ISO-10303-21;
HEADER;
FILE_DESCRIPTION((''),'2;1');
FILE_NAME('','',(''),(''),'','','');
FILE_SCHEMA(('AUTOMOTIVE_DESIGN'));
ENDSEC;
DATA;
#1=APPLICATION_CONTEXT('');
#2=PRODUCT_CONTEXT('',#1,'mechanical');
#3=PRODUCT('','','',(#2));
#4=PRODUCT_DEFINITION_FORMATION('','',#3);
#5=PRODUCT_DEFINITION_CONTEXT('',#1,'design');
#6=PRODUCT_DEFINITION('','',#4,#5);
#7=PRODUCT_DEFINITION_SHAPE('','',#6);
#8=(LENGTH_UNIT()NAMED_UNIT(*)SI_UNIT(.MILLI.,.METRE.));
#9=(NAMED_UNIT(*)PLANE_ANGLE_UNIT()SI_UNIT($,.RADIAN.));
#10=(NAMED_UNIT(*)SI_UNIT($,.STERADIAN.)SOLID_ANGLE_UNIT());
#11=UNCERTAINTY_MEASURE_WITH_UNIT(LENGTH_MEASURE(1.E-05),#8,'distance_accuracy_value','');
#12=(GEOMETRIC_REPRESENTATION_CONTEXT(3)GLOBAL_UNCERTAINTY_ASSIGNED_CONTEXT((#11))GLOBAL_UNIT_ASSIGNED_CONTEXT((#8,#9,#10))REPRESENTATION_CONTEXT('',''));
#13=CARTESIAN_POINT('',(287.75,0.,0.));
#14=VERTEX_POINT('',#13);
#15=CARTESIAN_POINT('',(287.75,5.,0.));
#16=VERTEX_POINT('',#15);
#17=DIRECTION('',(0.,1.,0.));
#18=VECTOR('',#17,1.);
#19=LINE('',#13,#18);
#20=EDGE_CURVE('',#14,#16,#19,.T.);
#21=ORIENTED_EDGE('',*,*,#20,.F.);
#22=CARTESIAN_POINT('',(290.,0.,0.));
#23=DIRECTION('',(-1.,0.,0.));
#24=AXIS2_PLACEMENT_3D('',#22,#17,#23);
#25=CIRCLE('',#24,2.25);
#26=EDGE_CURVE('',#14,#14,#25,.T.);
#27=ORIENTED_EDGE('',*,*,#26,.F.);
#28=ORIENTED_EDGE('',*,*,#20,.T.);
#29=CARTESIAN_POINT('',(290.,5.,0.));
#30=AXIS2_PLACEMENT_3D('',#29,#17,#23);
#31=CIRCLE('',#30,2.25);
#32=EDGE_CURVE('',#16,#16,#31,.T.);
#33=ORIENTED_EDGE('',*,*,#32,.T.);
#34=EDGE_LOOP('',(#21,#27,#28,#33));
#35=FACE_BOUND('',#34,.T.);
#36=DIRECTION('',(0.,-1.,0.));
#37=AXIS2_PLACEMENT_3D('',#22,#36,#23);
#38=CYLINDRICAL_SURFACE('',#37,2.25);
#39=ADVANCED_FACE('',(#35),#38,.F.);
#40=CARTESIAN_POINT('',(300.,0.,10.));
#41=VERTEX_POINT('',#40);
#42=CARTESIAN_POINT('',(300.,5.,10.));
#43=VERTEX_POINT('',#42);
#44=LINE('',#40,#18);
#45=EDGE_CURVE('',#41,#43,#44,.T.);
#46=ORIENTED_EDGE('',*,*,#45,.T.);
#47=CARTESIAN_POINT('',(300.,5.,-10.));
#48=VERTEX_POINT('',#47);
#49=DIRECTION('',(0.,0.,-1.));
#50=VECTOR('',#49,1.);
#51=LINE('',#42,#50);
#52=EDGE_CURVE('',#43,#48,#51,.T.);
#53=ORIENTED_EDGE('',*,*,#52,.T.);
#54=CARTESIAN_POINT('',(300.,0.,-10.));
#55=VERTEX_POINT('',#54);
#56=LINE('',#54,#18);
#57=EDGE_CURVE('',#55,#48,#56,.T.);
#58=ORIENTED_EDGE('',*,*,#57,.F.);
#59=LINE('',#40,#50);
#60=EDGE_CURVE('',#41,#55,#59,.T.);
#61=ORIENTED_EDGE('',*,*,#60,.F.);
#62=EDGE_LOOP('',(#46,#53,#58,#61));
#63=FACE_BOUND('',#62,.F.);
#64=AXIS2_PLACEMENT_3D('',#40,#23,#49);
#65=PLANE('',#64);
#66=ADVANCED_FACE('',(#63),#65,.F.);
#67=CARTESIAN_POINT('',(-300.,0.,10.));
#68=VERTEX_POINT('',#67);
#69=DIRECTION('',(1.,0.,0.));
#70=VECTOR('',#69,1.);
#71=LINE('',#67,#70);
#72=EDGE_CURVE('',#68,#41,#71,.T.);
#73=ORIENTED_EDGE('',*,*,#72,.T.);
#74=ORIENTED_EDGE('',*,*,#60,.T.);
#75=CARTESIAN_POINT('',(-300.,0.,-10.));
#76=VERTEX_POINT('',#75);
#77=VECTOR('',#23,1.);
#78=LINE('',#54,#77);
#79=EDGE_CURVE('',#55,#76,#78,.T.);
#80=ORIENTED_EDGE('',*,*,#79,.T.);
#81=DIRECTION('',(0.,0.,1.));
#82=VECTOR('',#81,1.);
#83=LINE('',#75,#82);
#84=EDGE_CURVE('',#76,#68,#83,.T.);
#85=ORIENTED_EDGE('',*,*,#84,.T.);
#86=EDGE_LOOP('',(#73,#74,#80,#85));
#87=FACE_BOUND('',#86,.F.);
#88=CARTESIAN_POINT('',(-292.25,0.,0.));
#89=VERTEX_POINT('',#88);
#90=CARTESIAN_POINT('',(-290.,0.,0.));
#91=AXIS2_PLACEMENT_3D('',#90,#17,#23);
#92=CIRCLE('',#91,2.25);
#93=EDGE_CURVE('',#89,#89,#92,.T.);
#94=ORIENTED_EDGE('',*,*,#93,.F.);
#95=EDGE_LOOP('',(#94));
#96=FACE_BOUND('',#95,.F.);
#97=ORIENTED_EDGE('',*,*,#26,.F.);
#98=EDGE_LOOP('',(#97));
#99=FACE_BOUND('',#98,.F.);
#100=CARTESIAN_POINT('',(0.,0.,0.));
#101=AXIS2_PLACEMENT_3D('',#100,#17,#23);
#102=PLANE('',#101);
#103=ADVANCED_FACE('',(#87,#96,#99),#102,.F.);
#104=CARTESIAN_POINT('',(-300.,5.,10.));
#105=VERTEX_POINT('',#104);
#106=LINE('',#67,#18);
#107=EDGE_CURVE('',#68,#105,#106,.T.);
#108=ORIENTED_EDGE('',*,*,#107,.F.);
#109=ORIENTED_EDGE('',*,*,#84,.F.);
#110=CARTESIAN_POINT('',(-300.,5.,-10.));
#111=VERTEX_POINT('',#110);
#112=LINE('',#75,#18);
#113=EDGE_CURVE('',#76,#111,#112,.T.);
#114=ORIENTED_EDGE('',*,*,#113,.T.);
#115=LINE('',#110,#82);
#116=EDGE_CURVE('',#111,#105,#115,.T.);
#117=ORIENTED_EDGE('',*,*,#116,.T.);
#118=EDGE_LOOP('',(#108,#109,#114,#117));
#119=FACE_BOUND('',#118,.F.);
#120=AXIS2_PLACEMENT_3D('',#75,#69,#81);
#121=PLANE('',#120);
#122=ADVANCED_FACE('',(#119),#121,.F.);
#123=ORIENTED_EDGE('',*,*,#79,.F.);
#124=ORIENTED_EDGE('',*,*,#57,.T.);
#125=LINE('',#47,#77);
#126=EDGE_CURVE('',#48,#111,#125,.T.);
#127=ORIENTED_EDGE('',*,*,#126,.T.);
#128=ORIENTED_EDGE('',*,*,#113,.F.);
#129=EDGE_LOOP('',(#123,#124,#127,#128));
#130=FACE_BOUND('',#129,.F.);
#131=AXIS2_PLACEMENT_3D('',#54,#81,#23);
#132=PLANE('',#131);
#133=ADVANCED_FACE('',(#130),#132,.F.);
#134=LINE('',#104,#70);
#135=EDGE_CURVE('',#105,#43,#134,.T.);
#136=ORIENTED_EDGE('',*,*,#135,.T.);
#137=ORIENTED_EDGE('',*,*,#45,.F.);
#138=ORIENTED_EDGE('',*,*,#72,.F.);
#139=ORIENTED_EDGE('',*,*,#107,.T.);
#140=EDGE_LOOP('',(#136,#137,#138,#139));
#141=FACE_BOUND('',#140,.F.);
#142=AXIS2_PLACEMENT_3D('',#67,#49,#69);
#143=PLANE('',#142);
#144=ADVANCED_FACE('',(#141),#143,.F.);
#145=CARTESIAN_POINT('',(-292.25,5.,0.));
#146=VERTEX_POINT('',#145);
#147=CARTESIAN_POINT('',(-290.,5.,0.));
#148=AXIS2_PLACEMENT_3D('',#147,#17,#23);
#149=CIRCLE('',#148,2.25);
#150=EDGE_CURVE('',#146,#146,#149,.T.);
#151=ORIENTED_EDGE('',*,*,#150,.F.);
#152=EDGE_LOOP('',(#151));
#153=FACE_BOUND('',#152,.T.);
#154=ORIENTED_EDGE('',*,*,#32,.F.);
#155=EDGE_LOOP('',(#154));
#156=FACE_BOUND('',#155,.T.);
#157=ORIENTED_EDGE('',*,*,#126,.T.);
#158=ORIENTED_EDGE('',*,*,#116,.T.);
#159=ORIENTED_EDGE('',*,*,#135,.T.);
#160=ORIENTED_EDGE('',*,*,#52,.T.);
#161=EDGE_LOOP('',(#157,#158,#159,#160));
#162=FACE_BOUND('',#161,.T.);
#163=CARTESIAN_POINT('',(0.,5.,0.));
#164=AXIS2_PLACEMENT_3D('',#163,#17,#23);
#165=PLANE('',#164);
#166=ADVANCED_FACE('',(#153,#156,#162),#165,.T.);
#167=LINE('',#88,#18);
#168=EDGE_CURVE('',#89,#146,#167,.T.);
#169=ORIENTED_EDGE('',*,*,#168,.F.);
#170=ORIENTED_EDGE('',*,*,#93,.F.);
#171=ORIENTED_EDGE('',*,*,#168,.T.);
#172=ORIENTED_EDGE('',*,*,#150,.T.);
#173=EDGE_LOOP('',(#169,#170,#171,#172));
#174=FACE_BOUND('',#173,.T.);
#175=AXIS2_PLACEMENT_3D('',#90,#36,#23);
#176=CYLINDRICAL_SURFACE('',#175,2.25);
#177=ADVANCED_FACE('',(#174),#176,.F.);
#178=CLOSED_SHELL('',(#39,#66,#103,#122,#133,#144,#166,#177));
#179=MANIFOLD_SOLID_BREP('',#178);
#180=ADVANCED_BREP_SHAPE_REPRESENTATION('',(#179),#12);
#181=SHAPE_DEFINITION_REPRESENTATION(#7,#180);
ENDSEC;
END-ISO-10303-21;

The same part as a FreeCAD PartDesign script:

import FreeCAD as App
import Part
import Sketcher
from FreeCAD import Vector
Q = App.Units.Quantity

doc = App.newDocument("Part")
body = doc.addObject("PartDesign::Body", "Body")

sketch1 = body.newObject("Sketcher::SketchObject", "Sketch")
sketch1.AttachmentSupport = (doc.getObject("XZ_Plane"), [""])
sketch1.MapMode = "FlatFace"
sketch1.addGeometry([
    Part.LineSegment(Vector(-300, -10, 0), Vector(-300, 10, 0)),
    Part.LineSegment(Vector(-300, 10, 0), Vector(300, 10, 0)),
    Part.LineSegment(Vector(300, 10, 0), Vector(300, -10, 0)),
    Part.LineSegment(Vector(300, -10, 0), Vector(-300, -10, 0)),
    Part.Circle(Vector(290, 0, 0), Vector(0, 0, 1), 2.25),
    Part.Circle(Vector(-290, 0, 0), Vector(0, 0, 1), 2.25),
], False)
sketch1.addConstraint([
    Sketcher.Constraint("Coincident", 0, 2, 1, 1),
    Sketcher.Constraint("Coincident", 1, 2, 2, 1),
    Sketcher.Constraint("Coincident", 2, 2, 3, 1),
    Sketcher.Constraint("Coincident", 3, 2, 0, 1),
    Sketcher.Constraint("Vertical", 0),
    Sketcher.Constraint("Horizontal", 1),
    Sketcher.Constraint("Vertical", 2),
    Sketcher.Constraint("Horizontal", 3),
    Sketcher.Constraint("Equal", 4, 5),
    Sketcher.Constraint("Symmetric", 4, 3, 5, 3, -1, 1),
    Sketcher.Constraint("Symmetric", 0, 2, 2, 2, -1, 1),
    Sketcher.Constraint("PointOnObject", 4, 3, -1),
    Sketcher.Constraint("Diameter", 4, Q("4.5 mm")),
    Sketcher.Constraint("DistanceX", 1, 1, 1, 2, Q("600 mm")),
    Sketcher.Constraint("DistanceY", 0, 1, 0, 2, Q("20 mm")),
    Sketcher.Constraint("DistanceX", 0, 2, 5, 3, Q("10 mm")),
])
pad1 = body.newObject("PartDesign::Pad", "Pad")
pad1.Profile = sketch1
pad1.Length = 5
pad1.Reversed = True

doc.recompute()
